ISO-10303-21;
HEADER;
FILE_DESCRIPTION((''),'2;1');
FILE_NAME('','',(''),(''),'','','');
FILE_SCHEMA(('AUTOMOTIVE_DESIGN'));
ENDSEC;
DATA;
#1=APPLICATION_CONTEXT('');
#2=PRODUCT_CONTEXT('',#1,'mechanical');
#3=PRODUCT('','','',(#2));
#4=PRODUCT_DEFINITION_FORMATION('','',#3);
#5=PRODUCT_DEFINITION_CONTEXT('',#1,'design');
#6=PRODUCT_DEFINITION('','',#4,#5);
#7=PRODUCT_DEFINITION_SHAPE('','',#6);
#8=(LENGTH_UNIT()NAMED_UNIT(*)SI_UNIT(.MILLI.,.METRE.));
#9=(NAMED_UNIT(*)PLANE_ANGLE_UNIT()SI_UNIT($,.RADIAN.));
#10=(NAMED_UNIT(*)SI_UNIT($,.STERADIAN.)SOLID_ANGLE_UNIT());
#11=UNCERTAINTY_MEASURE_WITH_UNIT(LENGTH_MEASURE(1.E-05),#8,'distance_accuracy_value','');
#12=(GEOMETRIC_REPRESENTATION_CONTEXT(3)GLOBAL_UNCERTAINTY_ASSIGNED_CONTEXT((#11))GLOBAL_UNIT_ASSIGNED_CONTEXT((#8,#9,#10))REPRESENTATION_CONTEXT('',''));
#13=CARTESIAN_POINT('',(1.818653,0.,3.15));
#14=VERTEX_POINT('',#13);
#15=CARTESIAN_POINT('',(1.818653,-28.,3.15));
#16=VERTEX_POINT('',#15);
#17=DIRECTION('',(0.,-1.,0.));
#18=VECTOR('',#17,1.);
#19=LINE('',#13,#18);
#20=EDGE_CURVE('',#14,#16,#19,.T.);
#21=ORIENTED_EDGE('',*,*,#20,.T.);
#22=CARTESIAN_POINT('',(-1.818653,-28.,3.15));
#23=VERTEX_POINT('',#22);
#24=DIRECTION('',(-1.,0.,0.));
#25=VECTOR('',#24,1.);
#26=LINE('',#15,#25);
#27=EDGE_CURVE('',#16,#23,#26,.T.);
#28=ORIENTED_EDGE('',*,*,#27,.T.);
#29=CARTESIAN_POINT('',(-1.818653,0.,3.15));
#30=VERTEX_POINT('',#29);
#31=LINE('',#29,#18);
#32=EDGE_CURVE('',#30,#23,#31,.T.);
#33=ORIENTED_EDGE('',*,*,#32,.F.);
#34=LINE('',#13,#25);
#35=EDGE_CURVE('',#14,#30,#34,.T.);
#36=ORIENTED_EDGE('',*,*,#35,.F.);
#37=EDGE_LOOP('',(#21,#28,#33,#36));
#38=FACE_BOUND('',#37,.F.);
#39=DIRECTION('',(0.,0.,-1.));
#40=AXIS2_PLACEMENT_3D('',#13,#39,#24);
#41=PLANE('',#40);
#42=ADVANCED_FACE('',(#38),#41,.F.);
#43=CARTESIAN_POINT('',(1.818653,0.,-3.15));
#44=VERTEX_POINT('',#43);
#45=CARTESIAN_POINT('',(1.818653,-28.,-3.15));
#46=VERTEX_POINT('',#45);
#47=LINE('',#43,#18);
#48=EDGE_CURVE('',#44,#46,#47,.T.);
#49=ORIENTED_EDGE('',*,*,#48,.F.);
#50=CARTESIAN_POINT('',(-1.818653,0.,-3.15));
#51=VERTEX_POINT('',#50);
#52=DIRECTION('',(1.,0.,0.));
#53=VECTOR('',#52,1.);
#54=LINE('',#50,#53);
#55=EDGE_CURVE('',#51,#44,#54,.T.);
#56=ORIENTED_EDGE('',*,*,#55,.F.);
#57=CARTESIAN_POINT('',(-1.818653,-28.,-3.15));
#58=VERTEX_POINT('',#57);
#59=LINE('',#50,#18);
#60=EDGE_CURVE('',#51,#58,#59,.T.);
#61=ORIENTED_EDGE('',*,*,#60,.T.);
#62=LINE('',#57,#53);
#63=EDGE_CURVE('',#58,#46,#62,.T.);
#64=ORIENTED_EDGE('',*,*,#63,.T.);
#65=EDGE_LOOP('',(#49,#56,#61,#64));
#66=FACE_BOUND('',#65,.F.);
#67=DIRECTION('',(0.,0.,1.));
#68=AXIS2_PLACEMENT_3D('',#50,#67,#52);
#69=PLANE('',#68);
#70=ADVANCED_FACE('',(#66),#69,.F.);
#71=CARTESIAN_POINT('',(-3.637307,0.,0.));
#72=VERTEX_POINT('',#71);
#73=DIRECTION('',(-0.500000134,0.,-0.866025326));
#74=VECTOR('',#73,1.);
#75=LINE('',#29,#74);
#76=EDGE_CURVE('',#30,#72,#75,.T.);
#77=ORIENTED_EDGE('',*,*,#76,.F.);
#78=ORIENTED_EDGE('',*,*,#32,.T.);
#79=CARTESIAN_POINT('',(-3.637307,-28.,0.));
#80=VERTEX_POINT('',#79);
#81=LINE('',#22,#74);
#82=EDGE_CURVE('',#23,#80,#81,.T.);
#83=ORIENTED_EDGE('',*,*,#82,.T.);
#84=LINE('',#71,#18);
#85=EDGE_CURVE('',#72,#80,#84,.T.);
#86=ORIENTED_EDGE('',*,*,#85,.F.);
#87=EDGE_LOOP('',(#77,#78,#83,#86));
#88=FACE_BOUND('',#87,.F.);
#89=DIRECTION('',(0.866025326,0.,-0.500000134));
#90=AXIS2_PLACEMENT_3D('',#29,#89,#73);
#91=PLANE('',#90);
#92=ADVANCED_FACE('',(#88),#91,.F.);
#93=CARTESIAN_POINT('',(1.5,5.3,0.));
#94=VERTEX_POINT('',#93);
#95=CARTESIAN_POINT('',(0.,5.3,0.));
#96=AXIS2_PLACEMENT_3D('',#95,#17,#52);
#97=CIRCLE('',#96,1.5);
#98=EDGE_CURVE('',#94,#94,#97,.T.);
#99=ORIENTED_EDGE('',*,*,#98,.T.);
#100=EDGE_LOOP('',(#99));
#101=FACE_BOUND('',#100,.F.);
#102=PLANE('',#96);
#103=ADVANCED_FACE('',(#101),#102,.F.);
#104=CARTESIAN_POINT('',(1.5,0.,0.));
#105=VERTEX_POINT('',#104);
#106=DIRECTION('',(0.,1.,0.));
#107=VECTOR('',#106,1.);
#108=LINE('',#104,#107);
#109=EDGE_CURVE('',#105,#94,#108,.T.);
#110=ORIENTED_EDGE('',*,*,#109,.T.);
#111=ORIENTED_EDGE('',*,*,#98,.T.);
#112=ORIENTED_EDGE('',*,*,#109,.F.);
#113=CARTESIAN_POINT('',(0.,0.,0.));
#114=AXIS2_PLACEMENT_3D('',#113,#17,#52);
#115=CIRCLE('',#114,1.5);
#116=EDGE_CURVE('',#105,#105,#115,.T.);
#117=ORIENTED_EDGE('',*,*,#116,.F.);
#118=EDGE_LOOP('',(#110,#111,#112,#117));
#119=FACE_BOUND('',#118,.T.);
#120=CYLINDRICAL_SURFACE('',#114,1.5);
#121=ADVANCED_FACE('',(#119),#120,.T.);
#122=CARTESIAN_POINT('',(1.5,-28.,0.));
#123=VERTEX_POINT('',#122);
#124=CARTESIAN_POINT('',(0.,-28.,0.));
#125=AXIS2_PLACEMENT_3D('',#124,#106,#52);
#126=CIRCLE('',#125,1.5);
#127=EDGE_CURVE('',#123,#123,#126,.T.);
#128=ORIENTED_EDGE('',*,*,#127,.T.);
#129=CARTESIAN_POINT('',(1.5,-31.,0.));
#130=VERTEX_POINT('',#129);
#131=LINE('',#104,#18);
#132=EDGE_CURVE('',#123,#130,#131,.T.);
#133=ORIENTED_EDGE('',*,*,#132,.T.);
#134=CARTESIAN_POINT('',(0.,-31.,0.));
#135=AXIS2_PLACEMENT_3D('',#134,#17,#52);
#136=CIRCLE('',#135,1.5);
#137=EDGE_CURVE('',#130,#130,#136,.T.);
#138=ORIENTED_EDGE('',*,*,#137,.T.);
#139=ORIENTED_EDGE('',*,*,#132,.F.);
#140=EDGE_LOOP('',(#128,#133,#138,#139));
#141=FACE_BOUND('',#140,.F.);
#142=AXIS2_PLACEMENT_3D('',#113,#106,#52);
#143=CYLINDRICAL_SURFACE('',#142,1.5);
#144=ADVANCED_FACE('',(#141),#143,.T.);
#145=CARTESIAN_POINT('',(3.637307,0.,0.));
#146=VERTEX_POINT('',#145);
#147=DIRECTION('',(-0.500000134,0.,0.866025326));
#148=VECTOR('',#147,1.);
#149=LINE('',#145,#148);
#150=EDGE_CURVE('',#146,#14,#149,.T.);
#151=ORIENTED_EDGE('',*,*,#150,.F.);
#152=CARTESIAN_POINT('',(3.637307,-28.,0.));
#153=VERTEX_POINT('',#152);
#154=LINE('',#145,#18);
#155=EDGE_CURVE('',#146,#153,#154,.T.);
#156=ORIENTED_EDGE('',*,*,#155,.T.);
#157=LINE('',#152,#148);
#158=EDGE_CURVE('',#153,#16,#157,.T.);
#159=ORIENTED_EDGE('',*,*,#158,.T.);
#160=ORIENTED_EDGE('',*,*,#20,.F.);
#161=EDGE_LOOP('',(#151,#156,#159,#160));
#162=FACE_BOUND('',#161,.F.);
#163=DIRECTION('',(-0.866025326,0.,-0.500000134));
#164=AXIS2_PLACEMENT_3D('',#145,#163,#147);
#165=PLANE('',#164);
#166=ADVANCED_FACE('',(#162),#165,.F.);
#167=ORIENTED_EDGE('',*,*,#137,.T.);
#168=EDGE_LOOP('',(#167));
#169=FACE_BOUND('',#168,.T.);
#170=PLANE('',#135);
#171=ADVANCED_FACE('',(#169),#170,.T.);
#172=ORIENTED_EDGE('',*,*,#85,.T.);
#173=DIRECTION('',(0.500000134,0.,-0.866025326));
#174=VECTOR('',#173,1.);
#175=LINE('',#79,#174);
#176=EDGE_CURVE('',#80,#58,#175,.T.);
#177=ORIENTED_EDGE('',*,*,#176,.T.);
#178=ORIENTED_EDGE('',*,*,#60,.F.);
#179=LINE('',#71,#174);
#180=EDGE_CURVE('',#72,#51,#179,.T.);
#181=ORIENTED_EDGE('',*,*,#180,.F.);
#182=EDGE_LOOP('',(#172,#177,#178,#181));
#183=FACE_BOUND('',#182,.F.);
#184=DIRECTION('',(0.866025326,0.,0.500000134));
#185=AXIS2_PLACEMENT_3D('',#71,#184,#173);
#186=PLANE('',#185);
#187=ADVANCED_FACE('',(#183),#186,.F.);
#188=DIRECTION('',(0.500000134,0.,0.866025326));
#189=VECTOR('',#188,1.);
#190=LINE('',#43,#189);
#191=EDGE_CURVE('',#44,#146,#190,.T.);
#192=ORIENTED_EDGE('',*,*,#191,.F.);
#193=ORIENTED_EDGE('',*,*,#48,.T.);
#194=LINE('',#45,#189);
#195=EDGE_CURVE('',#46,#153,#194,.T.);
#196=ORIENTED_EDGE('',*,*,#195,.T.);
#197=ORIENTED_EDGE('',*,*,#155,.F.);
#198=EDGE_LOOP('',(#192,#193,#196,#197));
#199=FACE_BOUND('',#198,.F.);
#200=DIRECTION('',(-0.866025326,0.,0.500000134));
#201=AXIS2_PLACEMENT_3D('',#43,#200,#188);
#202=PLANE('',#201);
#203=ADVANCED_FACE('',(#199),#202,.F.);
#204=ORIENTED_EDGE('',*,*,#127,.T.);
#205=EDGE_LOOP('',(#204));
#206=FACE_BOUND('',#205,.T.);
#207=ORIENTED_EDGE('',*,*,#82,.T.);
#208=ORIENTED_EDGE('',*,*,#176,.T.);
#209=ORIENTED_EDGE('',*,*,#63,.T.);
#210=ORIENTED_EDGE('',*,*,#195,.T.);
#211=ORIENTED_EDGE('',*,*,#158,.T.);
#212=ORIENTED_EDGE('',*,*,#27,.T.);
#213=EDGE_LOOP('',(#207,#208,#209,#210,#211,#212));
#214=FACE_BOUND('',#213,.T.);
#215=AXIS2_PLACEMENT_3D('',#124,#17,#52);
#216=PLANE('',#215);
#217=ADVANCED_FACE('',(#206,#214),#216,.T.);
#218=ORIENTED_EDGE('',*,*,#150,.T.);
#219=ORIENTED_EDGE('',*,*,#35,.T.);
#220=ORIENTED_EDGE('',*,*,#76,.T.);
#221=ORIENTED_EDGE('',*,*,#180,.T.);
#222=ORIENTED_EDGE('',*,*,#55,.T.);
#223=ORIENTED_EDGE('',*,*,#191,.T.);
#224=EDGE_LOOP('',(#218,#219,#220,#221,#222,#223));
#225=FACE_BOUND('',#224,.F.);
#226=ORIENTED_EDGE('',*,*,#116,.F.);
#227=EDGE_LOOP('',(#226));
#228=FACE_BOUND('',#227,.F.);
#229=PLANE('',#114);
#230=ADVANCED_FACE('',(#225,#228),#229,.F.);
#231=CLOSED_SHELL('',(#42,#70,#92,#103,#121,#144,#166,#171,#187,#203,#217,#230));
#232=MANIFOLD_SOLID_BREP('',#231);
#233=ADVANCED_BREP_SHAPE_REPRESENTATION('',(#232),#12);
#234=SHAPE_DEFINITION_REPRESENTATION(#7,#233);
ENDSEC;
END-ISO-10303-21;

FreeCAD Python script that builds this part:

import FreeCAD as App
import Part
import Sketcher
from FreeCAD import Vector
Q = App.Units.Quantity


def add_polygon(sketch, points):
    """Adds a closed chain of lines whose ends are joined by coincident constraints."""
    first, n = sketch.GeometryCount, len(points)
    for a, b in zip(points, points[1:] + points[:1]):
        sketch.addGeometry(Part.LineSegment(App.Vector(*a, 0), App.Vector(*b, 0)), False)
    for i in range(n):
        sketch.addConstraint(Sketcher.Constraint("Coincident", first + i, 2, first + (i + 1) % n, 1))

doc = App.newDocument("Part")
body = doc.addObject("PartDesign::Body", "Body")

sketch1 = doc.addObject("Sketcher::SketchObject", "Sketch")
body.addObject(sketch1)
sketch1.AttachmentSupport = (doc.XZ_Plane, [""])
sketch1.MapMode = "FlatFace"
add_polygon(sketch1, [(1.818653, 3.15), (-1.818653, 3.15), (-3.637307, 0), (-1.818653, -3.15), (1.818653, -3.15), (3.637307, 0)])
sketch1.addConstraint(Sketcher.Constraint("Horizontal", 0))
sketch1.addConstraint(Sketcher.Constraint("Horizontal", 3))
sketch1.addConstraint(Sketcher.Constraint("Symmetric", 0, 2, 3, 2, -1, 1))
sketch1.addConstraint(Sketcher.Constraint("Symmetric", 1, 2, 4, 2, -1, 1))
sketch1.addConstraint(Sketcher.Constraint("PointOnObject", 1, 2, -1))
sketch1.addConstraint(Sketcher.Constraint("Parallel", 2, 5))
sketch1.addConstraint(Sketcher.Constraint("Vertical", 0, 2, 2, 2))
sketch1.addConstraint(Sketcher.Constraint("Angle", 1, Q("-120.000009 deg")))
sketch1.addConstraint(Sketcher.Constraint("DistanceY", 2, 2, 0, 2, 6.3))
sketch1.addConstraint(Sketcher.Constraint("DistanceX", 0, 2, 0, 1, 3.637306))
pad1 = doc.addObject("PartDesign::Pad", "Pad")
body.addObject(pad1)
pad1.Profile = sketch1
pad1.Length = 28

sketch2 = doc.addObject("Sketcher::SketchObject", "Sketch001")
body.addObject(sketch2)
sketch2.AttachmentSupport = (doc.XZ_Plane, [""])
sketch2.MapMode = "FlatFace"
sketch2.addGeometry(Part.Circle(Vector(0, 0, 0), Vector(0, 0, 1), 1.5), False)
sketch2.addConstraint(Sketcher.Constraint("Coincident", 0, 3, -1, 1))
sketch2.addConstraint(Sketcher.Constraint("Diameter", 0, 3.0))
pad2 = doc.addObject("PartDesign::Pad", "Pad001")
body.addObject(pad2)
pad2.Profile = sketch2
pad2.Length = 5.3
pad2.Reversed = True

sketch3 = doc.addObject("Sketcher::SketchObject", "Sketch002")
body.addObject(sketch3)
sketch3.AttachmentSupport = (doc.XZ_Plane, [""])
sketch3.MapMode = "FlatFace"
sketch3.addGeometry(Part.Circle(Vector(0, 0, 0), Vector(0, 0, 1), 1.5), False)
sketch3.addConstraint(Sketcher.Constraint("Coincident", 0, 3, -1, 1))
sketch3.addConstraint(Sketcher.Constraint("Diameter", 0, 3.0))
pad3 = doc.addObject("PartDesign::Pad", "Pad002")
body.addObject(pad3)
pad3.Profile = sketch3
pad3.Length = 31

doc.recompute()
